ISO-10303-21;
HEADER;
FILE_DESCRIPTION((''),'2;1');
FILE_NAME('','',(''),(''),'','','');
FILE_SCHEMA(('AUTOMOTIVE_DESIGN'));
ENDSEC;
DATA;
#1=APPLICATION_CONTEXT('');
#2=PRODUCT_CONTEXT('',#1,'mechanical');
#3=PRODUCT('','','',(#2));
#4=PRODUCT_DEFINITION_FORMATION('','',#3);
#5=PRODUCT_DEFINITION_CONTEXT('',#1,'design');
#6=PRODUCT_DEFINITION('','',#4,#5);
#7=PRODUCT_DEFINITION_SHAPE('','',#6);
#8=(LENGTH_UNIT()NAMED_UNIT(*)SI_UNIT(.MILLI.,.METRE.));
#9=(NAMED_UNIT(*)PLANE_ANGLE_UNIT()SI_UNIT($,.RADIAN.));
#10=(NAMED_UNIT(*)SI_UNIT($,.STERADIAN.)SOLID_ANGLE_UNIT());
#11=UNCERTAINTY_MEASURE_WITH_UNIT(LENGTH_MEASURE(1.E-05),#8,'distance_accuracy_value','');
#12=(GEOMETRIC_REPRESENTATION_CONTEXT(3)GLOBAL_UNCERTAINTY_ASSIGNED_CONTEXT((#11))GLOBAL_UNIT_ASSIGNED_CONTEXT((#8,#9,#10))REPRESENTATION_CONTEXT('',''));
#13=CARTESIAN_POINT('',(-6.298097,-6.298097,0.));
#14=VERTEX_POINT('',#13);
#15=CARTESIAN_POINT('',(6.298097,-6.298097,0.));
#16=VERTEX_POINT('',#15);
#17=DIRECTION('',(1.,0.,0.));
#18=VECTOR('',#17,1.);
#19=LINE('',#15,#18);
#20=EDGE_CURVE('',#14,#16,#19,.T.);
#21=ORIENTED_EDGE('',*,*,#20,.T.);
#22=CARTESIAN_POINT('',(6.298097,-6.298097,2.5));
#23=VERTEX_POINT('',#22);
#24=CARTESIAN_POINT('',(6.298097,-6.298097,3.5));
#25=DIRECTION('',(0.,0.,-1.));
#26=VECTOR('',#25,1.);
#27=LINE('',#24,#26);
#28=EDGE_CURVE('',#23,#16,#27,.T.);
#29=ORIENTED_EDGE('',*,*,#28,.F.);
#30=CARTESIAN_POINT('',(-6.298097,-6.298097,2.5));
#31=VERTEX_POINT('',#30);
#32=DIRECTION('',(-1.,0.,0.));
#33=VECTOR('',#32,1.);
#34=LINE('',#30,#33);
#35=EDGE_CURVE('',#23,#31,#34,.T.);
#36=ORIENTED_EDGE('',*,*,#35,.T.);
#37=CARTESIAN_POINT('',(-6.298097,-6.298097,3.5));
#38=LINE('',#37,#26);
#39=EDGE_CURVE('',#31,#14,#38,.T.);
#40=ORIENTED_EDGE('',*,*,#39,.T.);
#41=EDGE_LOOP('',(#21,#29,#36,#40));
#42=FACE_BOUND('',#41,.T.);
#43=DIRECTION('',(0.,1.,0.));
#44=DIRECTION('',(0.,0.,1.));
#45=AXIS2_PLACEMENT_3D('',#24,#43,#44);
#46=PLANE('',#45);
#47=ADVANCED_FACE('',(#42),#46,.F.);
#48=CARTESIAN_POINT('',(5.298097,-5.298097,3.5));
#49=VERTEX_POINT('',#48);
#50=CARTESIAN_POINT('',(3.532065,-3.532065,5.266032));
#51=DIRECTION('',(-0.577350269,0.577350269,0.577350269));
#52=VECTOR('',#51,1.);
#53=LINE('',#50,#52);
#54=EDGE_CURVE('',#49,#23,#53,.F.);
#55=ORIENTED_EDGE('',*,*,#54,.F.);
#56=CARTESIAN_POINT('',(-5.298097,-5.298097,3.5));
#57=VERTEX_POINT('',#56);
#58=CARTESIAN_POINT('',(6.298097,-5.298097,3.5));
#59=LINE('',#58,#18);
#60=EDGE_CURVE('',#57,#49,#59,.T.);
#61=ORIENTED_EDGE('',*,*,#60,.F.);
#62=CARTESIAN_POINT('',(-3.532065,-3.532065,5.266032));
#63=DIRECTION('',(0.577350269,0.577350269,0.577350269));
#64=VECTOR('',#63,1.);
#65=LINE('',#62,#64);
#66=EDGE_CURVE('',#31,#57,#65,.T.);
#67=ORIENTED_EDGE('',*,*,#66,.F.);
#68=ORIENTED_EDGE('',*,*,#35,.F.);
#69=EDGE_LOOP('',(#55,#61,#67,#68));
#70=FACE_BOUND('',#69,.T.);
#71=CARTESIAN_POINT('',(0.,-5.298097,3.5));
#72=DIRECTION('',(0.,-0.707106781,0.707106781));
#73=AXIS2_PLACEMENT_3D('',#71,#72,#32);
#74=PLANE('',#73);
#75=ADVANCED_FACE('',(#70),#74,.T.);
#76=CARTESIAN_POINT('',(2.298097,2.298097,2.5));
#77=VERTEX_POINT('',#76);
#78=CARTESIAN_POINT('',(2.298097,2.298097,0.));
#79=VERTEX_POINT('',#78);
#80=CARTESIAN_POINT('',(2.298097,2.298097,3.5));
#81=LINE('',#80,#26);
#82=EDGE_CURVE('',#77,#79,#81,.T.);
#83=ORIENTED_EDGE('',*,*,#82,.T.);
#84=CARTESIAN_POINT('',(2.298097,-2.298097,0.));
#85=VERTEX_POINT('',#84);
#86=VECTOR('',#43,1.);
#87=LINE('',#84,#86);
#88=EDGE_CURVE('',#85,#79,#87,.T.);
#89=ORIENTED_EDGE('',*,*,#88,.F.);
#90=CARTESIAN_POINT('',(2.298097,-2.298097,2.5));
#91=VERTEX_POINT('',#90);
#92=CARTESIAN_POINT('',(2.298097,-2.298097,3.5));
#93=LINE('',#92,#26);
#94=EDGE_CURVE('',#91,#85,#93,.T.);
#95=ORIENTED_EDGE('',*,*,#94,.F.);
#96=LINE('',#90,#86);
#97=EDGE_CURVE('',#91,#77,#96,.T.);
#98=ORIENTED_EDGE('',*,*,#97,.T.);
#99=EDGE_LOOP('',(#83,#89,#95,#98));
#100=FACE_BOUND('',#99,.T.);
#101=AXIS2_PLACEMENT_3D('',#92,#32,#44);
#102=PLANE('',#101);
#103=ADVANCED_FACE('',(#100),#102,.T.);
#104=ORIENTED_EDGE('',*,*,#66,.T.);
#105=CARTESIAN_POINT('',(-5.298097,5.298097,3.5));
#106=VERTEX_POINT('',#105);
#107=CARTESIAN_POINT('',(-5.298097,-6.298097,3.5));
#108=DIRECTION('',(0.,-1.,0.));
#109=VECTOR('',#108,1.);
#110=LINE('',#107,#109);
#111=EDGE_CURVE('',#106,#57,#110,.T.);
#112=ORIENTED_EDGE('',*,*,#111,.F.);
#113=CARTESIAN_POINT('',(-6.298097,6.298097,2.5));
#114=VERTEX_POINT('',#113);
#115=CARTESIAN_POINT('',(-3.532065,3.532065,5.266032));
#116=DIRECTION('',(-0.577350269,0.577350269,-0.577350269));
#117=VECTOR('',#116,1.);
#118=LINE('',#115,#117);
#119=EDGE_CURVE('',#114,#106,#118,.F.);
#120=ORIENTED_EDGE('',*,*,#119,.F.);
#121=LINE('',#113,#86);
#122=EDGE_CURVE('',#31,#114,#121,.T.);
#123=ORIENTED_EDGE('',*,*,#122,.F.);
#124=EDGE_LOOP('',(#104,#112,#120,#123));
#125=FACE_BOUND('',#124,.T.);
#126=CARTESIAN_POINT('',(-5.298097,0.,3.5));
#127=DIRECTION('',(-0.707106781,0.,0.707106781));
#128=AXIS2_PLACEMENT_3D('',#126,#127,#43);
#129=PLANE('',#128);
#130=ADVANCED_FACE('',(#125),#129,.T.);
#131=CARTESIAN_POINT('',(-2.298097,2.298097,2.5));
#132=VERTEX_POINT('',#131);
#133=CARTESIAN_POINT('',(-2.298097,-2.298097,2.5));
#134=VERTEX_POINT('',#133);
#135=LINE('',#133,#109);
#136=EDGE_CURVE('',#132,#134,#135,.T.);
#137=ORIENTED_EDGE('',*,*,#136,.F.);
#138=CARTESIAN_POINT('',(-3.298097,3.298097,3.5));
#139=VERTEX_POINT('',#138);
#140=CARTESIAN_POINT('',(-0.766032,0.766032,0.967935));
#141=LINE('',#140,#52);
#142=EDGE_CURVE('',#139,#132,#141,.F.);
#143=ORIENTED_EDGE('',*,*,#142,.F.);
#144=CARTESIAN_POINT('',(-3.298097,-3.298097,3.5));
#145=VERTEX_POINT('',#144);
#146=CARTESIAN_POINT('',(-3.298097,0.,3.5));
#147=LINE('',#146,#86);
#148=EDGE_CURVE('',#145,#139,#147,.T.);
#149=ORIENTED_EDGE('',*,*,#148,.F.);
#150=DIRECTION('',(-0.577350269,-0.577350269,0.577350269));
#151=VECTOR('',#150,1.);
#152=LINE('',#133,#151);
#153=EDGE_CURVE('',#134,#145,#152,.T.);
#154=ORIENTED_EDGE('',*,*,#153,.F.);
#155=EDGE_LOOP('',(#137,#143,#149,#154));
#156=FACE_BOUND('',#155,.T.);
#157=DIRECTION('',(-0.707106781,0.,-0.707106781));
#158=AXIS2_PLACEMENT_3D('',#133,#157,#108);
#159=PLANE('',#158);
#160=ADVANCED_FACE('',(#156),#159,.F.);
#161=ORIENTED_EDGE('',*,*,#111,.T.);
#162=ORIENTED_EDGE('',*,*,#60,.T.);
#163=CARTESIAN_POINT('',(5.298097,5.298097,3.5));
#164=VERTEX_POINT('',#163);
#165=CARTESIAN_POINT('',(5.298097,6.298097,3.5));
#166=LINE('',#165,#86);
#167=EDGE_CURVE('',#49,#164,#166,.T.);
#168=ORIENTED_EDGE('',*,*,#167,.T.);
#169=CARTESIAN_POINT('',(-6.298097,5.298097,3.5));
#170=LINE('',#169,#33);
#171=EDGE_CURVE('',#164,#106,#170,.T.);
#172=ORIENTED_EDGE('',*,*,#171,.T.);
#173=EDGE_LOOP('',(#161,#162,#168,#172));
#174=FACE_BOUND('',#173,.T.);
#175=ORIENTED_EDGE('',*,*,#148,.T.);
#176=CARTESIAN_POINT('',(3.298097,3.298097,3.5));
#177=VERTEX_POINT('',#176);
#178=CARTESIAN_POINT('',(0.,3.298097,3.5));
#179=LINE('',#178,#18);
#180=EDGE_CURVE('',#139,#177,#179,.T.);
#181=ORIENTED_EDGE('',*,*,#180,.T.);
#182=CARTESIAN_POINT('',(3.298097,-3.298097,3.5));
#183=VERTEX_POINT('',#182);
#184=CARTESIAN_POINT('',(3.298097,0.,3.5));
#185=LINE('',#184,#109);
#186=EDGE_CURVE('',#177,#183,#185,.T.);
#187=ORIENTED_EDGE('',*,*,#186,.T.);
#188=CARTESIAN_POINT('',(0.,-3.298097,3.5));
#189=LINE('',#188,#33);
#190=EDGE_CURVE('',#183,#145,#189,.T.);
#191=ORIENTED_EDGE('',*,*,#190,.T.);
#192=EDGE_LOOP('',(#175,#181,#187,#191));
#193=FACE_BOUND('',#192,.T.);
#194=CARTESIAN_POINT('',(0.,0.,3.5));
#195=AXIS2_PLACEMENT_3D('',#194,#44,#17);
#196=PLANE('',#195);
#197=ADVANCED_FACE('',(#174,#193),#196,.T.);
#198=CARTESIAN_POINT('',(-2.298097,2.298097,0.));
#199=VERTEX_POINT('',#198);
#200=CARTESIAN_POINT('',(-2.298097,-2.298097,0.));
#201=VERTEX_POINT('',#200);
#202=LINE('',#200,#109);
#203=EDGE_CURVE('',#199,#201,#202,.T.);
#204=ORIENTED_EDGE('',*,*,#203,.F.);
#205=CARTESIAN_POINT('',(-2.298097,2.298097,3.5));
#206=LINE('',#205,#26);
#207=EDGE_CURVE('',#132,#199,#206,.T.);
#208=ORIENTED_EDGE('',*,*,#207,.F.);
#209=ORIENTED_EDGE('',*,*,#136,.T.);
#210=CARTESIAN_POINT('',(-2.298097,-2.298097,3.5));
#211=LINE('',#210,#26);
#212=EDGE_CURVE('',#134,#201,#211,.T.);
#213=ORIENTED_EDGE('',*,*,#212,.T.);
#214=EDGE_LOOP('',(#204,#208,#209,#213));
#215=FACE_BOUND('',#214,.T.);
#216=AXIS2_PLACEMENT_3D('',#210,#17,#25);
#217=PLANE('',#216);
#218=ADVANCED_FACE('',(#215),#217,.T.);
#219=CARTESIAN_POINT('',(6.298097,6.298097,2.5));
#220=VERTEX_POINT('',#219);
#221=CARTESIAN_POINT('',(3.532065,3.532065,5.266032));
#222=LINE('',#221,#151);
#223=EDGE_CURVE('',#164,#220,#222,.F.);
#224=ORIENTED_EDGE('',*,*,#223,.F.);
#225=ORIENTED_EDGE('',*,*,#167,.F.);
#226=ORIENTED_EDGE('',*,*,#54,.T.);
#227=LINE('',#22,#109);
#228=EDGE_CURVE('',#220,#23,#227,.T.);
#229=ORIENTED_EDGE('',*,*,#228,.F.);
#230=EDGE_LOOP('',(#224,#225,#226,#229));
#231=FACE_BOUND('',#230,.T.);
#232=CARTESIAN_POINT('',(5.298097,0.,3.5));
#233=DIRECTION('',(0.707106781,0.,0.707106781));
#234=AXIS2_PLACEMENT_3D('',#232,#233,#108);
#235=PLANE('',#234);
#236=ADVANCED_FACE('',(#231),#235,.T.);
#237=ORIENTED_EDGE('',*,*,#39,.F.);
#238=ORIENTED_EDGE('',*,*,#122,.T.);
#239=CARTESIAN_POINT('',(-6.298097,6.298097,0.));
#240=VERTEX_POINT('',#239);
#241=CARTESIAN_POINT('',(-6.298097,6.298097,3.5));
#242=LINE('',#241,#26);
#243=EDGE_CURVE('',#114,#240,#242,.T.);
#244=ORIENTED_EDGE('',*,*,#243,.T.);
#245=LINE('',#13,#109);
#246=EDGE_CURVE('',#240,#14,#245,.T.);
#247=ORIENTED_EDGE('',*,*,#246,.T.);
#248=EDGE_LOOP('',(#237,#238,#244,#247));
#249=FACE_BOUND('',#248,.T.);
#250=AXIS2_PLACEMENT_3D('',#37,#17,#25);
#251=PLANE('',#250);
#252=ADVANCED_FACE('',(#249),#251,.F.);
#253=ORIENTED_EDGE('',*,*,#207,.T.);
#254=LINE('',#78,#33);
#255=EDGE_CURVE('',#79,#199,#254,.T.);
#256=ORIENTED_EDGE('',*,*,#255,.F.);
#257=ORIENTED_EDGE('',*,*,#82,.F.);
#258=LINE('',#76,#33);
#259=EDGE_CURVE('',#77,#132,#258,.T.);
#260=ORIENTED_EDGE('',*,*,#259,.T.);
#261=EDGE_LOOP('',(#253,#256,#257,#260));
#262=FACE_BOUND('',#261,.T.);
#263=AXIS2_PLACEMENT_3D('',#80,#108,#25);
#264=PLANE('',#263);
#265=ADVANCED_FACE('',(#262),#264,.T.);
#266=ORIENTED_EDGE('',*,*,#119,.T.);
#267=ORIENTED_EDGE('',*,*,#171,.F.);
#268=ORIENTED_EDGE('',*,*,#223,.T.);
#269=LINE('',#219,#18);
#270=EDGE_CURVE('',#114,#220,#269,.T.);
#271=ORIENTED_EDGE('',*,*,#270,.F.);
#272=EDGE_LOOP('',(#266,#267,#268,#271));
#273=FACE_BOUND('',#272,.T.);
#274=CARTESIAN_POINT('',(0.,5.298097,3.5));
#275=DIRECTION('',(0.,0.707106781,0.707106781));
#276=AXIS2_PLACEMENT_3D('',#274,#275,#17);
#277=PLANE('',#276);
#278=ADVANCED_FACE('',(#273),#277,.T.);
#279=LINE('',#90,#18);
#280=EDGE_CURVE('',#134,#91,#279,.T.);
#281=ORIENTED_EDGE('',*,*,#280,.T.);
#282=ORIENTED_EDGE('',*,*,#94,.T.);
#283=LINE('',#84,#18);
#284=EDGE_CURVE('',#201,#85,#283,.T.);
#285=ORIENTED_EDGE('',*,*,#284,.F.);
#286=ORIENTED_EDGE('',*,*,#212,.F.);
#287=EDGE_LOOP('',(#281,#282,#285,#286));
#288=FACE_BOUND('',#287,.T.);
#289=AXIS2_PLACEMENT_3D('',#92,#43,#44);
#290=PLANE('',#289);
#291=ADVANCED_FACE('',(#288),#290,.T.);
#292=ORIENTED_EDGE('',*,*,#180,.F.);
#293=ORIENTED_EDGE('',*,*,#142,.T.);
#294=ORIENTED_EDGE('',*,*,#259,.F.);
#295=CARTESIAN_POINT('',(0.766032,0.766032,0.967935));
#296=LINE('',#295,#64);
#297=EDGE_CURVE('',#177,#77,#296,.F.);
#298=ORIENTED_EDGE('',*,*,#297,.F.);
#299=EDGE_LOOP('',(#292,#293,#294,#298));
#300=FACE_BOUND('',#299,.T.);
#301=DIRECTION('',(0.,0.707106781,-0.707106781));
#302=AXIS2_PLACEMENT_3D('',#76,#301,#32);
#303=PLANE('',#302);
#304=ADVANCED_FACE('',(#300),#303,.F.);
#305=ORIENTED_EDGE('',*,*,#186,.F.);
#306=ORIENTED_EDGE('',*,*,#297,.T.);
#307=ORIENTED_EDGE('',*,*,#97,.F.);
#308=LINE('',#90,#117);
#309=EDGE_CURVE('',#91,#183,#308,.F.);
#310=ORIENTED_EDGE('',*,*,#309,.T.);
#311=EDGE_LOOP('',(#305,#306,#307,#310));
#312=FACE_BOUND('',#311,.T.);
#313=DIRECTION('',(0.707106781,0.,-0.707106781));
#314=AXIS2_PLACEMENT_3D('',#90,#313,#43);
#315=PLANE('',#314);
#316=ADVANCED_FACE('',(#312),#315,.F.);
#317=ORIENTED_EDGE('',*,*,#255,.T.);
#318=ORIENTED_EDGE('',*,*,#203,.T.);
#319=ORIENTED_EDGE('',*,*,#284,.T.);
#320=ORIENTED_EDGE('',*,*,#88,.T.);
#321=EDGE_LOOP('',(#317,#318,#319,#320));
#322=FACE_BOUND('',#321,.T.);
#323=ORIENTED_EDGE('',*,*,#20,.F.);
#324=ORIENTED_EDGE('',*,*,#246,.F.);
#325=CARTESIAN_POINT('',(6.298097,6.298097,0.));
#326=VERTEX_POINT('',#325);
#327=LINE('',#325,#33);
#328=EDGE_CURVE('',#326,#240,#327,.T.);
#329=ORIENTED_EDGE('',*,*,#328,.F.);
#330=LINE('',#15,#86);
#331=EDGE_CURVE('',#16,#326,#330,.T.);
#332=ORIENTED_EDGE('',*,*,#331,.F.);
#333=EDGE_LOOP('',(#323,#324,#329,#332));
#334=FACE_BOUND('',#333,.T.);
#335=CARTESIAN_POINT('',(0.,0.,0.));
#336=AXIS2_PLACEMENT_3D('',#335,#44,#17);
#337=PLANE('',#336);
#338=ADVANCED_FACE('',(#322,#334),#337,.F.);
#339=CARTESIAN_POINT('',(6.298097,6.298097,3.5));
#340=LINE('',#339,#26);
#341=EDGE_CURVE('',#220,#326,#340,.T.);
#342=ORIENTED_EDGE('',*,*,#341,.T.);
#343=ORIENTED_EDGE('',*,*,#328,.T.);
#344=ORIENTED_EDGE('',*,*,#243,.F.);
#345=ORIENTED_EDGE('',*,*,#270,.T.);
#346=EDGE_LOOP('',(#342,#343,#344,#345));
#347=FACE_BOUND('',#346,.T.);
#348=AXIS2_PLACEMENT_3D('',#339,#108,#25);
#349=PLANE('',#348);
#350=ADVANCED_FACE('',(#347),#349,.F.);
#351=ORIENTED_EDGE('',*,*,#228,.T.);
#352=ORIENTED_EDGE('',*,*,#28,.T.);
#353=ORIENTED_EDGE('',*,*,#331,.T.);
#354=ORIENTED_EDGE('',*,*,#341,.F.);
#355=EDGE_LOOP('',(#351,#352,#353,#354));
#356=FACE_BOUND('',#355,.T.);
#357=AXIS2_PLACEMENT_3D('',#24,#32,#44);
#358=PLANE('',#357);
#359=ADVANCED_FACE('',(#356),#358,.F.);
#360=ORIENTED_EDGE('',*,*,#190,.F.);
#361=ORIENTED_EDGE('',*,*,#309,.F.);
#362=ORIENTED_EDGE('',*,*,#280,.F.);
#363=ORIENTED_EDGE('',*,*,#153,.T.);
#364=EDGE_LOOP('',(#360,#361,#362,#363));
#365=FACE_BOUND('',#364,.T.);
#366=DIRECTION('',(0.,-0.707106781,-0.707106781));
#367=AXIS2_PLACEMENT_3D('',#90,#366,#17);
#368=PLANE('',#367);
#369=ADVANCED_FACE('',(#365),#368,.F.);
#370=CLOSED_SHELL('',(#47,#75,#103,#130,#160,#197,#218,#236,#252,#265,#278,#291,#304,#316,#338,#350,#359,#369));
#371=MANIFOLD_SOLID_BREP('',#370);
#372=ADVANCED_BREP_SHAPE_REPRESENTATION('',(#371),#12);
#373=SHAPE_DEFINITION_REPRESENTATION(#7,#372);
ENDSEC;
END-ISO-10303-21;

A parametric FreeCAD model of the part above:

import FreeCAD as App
import Part
import Sketcher


def edges_at(feature, points):
    """Names of the edges that pass closest to the given points."""
    edges = feature.Shape.Edges
    near = lambda p: min(range(len(edges)), key=lambda i: edges[i].distToShape(Part.Vertex(*p))[0])
    return sorted({f"Edge{near(p) + 1}" for p in points})

doc = App.newDocument("Part")
body = doc.addObject("PartDesign::Body", "Body")

# Sketch on XY plane
sketch1 = body.newObject("Sketcher::SketchObject", "Sketch")
sketch1.AttachmentSupport = (doc.getObject("XY_Plane"), [""])
sketch1.MapMode = "FlatFace"
sketch1.addGeometry(Part.LineSegment(App.Vector(-6.3, 6.3, 0), App.Vector(-6.3, -6.3, 0)), False)
sketch1.addGeometry(Part.LineSegment(App.Vector(-6.3, -6.3, 0), App.Vector(6.3, -6.3, 0)), False)
sketch1.addGeometry(Part.LineSegment(App.Vector(6.3, -6.3, 0), App.Vector(6.3, 6.3, 0)), False)
sketch1.addGeometry(Part.LineSegment(App.Vector(6.3, 6.3, 0), App.Vector(-6.3, 6.3, 0)), False)
sketch1.addGeometry(Part.LineSegment(App.Vector(2.3, -2.3, 0), App.Vector(-2.3, -2.3, 0)), False)
sketch1.addGeometry(Part.LineSegment(App.Vector(-2.3, -2.3, 0), App.Vector(-2.3, 2.3, 0)), False)
sketch1.addGeometry(Part.LineSegment(App.Vector(-2.3, 2.3, 0), App.Vector(2.3, 2.3, 0)), False)
sketch1.addGeometry(Part.LineSegment(App.Vector(2.3, 2.3, 0), App.Vector(2.3, -2.3, 0)), False)
sketch1.addConstraint(Sketcher.Constraint("Coincident", 0, 2, 1, 1))
sketch1.addConstraint(Sketcher.Constraint("Coincident", 1, 2, 2, 1))
sketch1.addConstraint(Sketcher.Constraint("Coincident", 2, 2, 3, 1))
sketch1.addConstraint(Sketcher.Constraint("Coincident", 3, 2, 0, 1))
sketch1.addConstraint(Sketcher.Constraint("Coincident", 4, 2, 5, 1))
sketch1.addConstraint(Sketcher.Constraint("Coincident", 5, 2, 6, 1))
sketch1.addConstraint(Sketcher.Constraint("Coincident", 6, 2, 7, 1))
sketch1.addConstraint(Sketcher.Constraint("Coincident", 7, 2, 4, 1))
sketch1.addConstraint(Sketcher.Constraint("Vertical", 0))
sketch1.addConstraint(Sketcher.Constraint("Horizontal", 1))
sketch1.addConstraint(Sketcher.Constraint("Vertical", 2))
sketch1.addConstraint(Sketcher.Constraint("Horizontal", 3))
sketch1.addConstraint(Sketcher.Constraint("Horizontal", 4))
sketch1.addConstraint(Sketcher.Constraint("Vertical", 5))
sketch1.addConstraint(Sketcher.Constraint("Horizontal", 6))
sketch1.addConstraint(Sketcher.Constraint("Vertical", 7))
sketch1.addConstraint(Sketcher.Constraint("Symmetric", 0, 2, 2, 2, -1, 1))
sketch1.addConstraint(Sketcher.Constraint("Symmetric", 4, 2, 6, 2, -1, 1))
sketch1.addConstraint(Sketcher.Constraint("Equal", 3, 0))
sketch1.addConstraint(Sketcher.Constraint("Equal", 6, 5))
sketch1.addConstraint(Sketcher.Constraint("DistanceX", 0, 2, 4, 2, 4.0))
sketch1.addConstraint(Sketcher.Constraint("DistanceX", 1, 1, 1, 2, 12.596194))
pad1 = body.newObject("PartDesign::Pad", "Pad")
pad1.Profile = sketch1
pad1.Length = 3.5
doc.recompute()

chamfer = body.newObject("PartDesign::Chamfer", "Chamfer")
chamfer.Base = (pad1, edges_at(pad1, [
    (6.298, 0, 3.5),
    (-2.298, 0, 3.5),
    (0, 6.298, 3.5),
    (0, -2.298, 3.5),
    (2.298, 0, 3.5),
    (0, 2.298, 3.5),
    (-6.298, 0, 3.5),
    (0, -6.298, 3.5),
]))
chamfer.Size = 1

doc.recompute()
